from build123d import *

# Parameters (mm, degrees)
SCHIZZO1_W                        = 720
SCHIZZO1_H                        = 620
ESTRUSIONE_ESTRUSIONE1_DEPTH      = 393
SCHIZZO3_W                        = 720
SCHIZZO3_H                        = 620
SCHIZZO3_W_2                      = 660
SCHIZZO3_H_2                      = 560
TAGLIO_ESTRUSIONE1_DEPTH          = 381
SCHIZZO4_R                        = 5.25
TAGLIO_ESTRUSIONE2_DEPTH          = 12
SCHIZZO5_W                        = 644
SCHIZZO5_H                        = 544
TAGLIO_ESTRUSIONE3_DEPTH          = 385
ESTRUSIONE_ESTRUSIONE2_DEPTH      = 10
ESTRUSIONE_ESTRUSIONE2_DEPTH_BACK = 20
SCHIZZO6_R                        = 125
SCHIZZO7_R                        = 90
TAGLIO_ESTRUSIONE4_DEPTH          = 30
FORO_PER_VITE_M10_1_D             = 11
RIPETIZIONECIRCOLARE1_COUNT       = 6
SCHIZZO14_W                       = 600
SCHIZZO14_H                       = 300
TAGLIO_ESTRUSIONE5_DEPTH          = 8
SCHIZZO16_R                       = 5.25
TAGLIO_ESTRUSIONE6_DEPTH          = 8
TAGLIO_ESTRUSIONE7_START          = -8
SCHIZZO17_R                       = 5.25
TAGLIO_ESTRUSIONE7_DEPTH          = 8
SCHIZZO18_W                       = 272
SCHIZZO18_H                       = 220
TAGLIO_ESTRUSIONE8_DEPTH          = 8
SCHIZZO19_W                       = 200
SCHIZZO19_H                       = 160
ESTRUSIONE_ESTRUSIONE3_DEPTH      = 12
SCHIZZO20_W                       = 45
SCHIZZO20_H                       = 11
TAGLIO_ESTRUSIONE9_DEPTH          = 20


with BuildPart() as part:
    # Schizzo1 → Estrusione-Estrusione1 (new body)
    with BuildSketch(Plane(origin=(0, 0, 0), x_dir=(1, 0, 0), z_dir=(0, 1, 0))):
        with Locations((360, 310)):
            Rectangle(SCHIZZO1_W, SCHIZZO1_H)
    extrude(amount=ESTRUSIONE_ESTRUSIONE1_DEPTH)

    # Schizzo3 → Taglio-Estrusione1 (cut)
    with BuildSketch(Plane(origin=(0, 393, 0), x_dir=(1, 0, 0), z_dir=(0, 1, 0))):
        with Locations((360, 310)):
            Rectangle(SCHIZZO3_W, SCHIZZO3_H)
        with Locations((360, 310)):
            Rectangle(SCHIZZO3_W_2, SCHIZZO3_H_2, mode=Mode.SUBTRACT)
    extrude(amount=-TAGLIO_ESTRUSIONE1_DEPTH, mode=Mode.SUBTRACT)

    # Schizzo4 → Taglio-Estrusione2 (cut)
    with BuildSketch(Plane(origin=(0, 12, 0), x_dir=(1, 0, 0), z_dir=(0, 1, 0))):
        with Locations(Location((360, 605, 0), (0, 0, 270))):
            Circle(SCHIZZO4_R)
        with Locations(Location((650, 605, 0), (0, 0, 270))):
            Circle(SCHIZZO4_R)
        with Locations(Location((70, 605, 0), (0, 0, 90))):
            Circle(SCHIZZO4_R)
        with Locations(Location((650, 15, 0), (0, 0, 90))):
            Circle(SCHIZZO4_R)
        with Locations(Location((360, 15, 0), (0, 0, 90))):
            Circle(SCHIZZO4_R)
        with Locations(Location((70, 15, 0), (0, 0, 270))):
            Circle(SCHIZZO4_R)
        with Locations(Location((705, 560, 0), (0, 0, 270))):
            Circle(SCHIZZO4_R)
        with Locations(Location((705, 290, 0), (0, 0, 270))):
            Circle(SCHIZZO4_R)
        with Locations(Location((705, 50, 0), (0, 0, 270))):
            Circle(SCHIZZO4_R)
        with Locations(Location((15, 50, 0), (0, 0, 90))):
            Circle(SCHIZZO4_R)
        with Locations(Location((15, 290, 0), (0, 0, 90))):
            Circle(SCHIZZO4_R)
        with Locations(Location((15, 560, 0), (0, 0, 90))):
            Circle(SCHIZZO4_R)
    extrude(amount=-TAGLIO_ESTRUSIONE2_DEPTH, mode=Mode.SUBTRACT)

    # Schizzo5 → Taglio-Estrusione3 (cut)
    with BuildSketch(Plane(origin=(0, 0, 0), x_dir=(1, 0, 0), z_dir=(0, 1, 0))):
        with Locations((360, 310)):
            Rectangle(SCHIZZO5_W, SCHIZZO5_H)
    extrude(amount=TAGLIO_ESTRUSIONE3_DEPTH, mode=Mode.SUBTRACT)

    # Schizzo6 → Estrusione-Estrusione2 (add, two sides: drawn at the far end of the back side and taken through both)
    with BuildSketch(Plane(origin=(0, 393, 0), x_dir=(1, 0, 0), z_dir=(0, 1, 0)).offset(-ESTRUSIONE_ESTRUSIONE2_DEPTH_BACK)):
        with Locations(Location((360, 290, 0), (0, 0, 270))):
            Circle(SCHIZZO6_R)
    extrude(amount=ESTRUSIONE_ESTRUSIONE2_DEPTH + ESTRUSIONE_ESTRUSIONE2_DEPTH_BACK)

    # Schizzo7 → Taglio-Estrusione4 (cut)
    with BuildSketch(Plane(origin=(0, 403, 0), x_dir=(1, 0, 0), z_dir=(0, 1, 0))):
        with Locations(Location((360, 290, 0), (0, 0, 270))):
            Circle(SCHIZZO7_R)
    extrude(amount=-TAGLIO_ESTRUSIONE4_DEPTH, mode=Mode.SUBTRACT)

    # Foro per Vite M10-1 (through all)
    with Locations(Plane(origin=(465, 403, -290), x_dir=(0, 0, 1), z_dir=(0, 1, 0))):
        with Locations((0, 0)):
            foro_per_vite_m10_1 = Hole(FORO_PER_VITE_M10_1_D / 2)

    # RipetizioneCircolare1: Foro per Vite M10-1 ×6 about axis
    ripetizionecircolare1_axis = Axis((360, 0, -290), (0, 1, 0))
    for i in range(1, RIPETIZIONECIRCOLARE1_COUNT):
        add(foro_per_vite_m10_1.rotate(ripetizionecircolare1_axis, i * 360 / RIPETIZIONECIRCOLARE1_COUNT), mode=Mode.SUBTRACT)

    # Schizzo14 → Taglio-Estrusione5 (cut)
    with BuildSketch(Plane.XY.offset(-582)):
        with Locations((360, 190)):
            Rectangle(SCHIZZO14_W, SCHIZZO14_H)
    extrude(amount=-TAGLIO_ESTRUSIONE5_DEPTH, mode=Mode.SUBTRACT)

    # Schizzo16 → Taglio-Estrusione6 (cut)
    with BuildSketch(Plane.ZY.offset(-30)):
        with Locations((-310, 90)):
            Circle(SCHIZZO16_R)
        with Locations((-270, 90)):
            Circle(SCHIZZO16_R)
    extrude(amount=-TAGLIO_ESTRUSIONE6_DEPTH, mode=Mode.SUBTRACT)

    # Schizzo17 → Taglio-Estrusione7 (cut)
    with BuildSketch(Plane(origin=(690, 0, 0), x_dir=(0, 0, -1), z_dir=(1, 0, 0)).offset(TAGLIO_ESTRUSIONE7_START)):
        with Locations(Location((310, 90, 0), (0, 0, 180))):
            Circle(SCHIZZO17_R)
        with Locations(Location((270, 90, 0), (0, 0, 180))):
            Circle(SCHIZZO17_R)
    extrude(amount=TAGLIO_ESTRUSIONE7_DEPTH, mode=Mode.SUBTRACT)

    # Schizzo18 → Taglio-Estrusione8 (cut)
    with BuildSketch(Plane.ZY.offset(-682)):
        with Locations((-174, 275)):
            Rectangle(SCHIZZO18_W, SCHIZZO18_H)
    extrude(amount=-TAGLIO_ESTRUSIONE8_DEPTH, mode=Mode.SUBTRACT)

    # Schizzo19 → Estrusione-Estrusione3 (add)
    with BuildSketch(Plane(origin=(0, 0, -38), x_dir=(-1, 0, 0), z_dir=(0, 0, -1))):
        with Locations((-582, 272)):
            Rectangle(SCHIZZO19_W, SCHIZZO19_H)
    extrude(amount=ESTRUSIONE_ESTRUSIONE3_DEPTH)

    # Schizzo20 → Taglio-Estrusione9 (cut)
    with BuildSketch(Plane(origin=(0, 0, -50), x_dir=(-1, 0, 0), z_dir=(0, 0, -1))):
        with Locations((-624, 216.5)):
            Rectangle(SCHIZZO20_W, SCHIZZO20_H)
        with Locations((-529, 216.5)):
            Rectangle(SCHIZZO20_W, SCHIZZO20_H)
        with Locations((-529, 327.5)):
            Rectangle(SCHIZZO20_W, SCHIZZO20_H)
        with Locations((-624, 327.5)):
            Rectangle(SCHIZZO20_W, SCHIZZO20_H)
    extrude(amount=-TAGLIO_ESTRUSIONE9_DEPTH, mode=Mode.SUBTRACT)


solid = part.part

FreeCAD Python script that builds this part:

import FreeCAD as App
import Part
import Sketcher
Q = App.Units.Quantity


def add_polygon(sketch, points):
    """Adds a closed chain of lines whose ends are joined by coincident constraints."""
    first, n = sketch.GeometryCount, len(points)
    for a, b in zip(points, points[1:] + points[:1]):
        sketch.addGeometry(Part.LineSegment(App.Vector(*a, 0), App.Vector(*b, 0)), False)
    for i in range(n):
        sketch.addConstraint(Sketcher.Constraint("Coincident", first + i, 2, first + (i + 1) % n, 1))

doc = App.newDocument("Part")
body = doc.addObject("PartDesign::Body", "Body")

sketch1 = body.newObject("Sketcher::SketchObject", "Sketch")
sketch1.AttachmentSupport = (doc.getObject("XZ_Plane"), [""])
sketch1.MapMode = "FlatFace"
add_polygon(sketch1, [(0, -620), (0, 0), (720, 0), (720, -620)])
sketch1.addConstraint(Sketcher.Constraint("Vertical", 0))
sketch1.addConstraint(Sketcher.Constraint("Horizontal", 1))
sketch1.addConstraint(Sketcher.Constraint("Vertical", 2))
sketch1.addConstraint(Sketcher.Constraint("Horizontal", 3))
sketch1.addConstraint(Sketcher.Constraint("Coincident", 0, 2, -1, 1))
sketch1.addConstraint(Sketcher.Constraint("DistanceX", 1, 1, 1, 2, Q("720 mm")))
sketch1.addConstraint(Sketcher.Constraint("DistanceY", 0, 1, 0, 2, Q("620 mm")))
pad1 = body.newObject("PartDesign::Pad", "Pad")
pad1.Profile = sketch1
pad1.Length = 393
pad1.Reversed = True

sketch2 = body.newObject("Sketcher::SketchObject", "Sketch001")
sketch2.AttachmentSupport = (doc.getObject("XZ_Plane"), [""])
sketch2.MapMode = "FlatFace"
sketch2.AttachmentOffset = App.Placement(App.Vector(0, 0, -393), App.Rotation())
add_polygon(sketch2, [(0, -620), (0, 0), (720, 0), (720, -620)])
add_polygon(sketch2, [(690, -30), (30, -30), (30, -590), (690, -590)])
sketch2.addConstraint(Sketcher.Constraint("Vertical", 0))
sketch2.addConstraint(Sketcher.Constraint("Horizontal", 1))
sketch2.addConstraint(Sketcher.Constraint("Vertical", 2))
sketch2.addConstraint(Sketcher.Constraint("Horizontal", 3))
sketch2.addConstraint(Sketcher.Constraint("Horizontal", 4))
sketch2.addConstraint(Sketcher.Constraint("Vertical", 5))
sketch2.addConstraint(Sketcher.Constraint("Horizontal", 6))
sketch2.addConstraint(Sketcher.Constraint("Vertical", 7))
sketch2.addConstraint(Sketcher.Constraint("Coincident", 0, 2, -1, 1))
sketch2.addConstraint(Sketcher.Constraint("DistanceX", 1, 1, 1, 2, Q("720 mm")))
sketch2.addConstraint(Sketcher.Constraint("DistanceX", 4, 2, 4, 1, Q("660 mm")))
sketch2.addConstraint(Sketcher.Constraint("DistanceY", 0, 1, 0, 2, Q("620 mm")))
sketch2.addConstraint(Sketcher.Constraint("DistanceY", 5, 2, 5, 1, Q("560 mm")))
sketch2.addConstraint(Sketcher.Constraint("DistanceX", -1, 1, 4, 2, Q("30 mm")))
sketch2.addConstraint(Sketcher.Constraint("DistanceY", 4, 2, -1, 1, Q("30 mm")))
pocket1 = body.newObject("PartDesign::Pocket", "Pocket")
pocket1.Profile = sketch2
pocket1.Length = 381
pocket1.Reversed = True

sketch3 = body.newObject("Sketcher::SketchObject", "Sketch002")
sketch3.AttachmentSupport = (doc.getObject("XZ_Plane"), [""])
sketch3.MapMode = "FlatFace"
sketch3.AttachmentOffset = App.Placement(App.Vector(0, 0, -12), App.Rotation())
sketch3.addGeometry(Part.Circle(App.Vector(360, -605, 0), App.Vector(0, 0, 1), 5), False)
sketch3.addGeometry(Part.Circle(App.Vector(650, -605, 0), App.Vector(0, 0, 1), 5), False)
sketch3.addGeometry(Part.Circle(App.Vector(70, -605, 0), App.Vector(0, 0, 1), 5), False)
sketch3.addGeometry(Part.Circle(App.Vector(650, -15, 0), App.Vector(0, 0, 1), 5), False)
sketch3.addGeometry(Part.Circle(App.Vector(360, -15, 0), App.Vector(0, 0, 1), 5), False)
sketch3.addGeometry(Part.Circle(App.Vector(70, -15, 0), App.Vector(0, 0, 1), 5), False)
sketch3.addGeometry(Part.Circle(App.Vector(705, -560, 0), App.Vector(0, 0, 1), 5), False)
sketch3.addGeometry(Part.Circle(App.Vector(705, -290, 0), App.Vector(0, 0, 1), 5), False)
sketch3.addGeometry(Part.Circle(App.Vector(705, -50, 0), App.Vector(0, 0, 1), 5), False)
sketch3.addGeometry(Part.Circle(App.Vector(15, -50, 0), App.Vector(0, 0, 1), 5), False)
sketch3.addGeometry(Part.Circle(App.Vector(15, -290, 0), App.Vector(0, 0, 1), 5), False)
sketch3.addGeometry(Part.Circle(App.Vector(15, -560, 0), App.Vector(0, 0, 1), 5), False)
sketch3.addConstraint(Sketcher.Constraint("Equal", 0, 1))
sketch3.addConstraint(Sketcher.Constraint("Equal", 1, 2))
sketch3.addConstraint(Sketcher.Constraint("Equal", 2, 3))
sketch3.addConstraint(Sketcher.Constraint("Equal", 3, 4))
sketch3.addConstraint(Sketcher.Constraint("Equal", 4, 5))
sketch3.addConstraint(Sketcher.Constraint("Equal", 5, 6))
sketch3.addConstraint(Sketcher.Constraint("Equal", 6, 7))
sketch3.addConstraint(Sketcher.Constraint("Equal", 7, 8))
sketch3.addConstraint(Sketcher.Constraint("Equal", 8, 9))
sketch3.addConstraint(Sketcher.Constraint("Equal", 9, 10))
sketch3.addConstraint(Sketcher.Constraint("Equal", 10, 11))
sketch3.addConstraint(Sketcher.Constraint("Horizontal", 0, 3, 1, 3))
sketch3.addConstraint(Sketcher.Constraint("Horizontal", 1, 3, 2, 3))
sketch3.addConstraint(Sketcher.Constraint("Horizontal", 3, 3, 4, 3))
sketch3.addConstraint(Sketcher.Constraint("Horizontal", 4, 3, 5, 3))
sketch3.addConstraint(Sketcher.Constraint("Horizontal", 8, 3, 9, 3))
sketch3.addConstraint(Sketcher.Constraint("Horizontal", 7, 3, 10, 3))
sketch3.addConstraint(Sketcher.Constraint("Horizontal", 6, 3, 11, 3))
sketch3.addConstraint(Sketcher.Constraint("Vertical", 1, 3, 3, 3))
sketch3.addConstraint(Sketcher.Constraint("Vertical", 0, 3, 4, 3))
sketch3.addConstraint(Sketcher.Constraint("Vertical", 2, 3, 5, 3))
sketch3.addConstraint(Sketcher.Constraint("Vertical", 6, 3, 7, 3))
sketch3.addConstraint(Sketcher.Constraint("Vertical", 7, 3, 8, 3))
sketch3.addConstraint(Sketcher.Constraint("Vertical", 9, 3, 10, 3))
sketch3.addConstraint(Sketcher.Constraint("Vertical", 10, 3, 11, 3))
sketch3.addConstraint(Sketcher.Constraint("Diameter", 0, Q("10.5 mm")))
sketch3.addConstraint(Sketcher.Constraint("DistanceX", -1, 1, 0, 3, Q("360 mm")))
sketch3.addConstraint(Sketcher.Constraint("DistanceY", 0, 3, -1, 1, Q("605 mm")))
sketch3.addConstraint(Sketcher.Constraint("DistanceX", -1, 1, 1, 3, Q("650 mm")))
sketch3.addConstraint(Sketcher.Constraint("DistanceX", -1, 1, 2, 3, Q("70 mm")))
sketch3.addConstraint(Sketcher.Constraint("DistanceY", 3, 3, -1, 1, Q("15 mm")))
sketch3.addConstraint(Sketcher.Constraint("DistanceX", -1, 1, 6, 3, Q("705 mm")))
sketch3.addConstraint(Sketcher.Constraint("DistanceY", 6, 3, -1, 1, Q("560 mm")))
sketch3.addConstraint(Sketcher.Constraint("DistanceY", 7, 3, -1, 1, Q("290 mm")))
sketch3.addConstraint(Sketcher.Constraint("DistanceY", 8, 3, -1, 1, Q("50 mm")))
sketch3.addConstraint(Sketcher.Constraint("DistanceX", -1, 1, 9, 3, Q("15 mm")))
pocket2 = body.newObject("PartDesign::Pocket", "Pocket001")
pocket2.Profile = sketch3
pocket2.Length = 12
pocket2.Reversed = True

sketch4 = body.newObject("Sketcher::SketchObject", "Sketch003")
sketch4.AttachmentSupport = (doc.getObject("XZ_Plane"), [""])
sketch4.MapMode = "FlatFace"
add_polygon(sketch4, [(38, -582), (38, -38), (682, -38), (682, -582)])
sketch4.addConstraint(Sketcher.Constraint("Vertical", 0))
sketch4.addConstraint(Sketcher.Constraint("Horizontal", 1))
sketch4.addConstraint(Sketcher.Constraint("Vertical", 2))
sketch4.addConstraint(Sketcher.Constraint("Horizontal", 3))
sketch4.addConstraint(Sketcher.Constraint("DistanceX", 1, 1, 1, 2, Q("644 mm")))
sketch4.addConstraint(Sketcher.Constraint("DistanceY", 0, 1, 0, 2, Q("544 mm")))
sketch4.addConstraint(Sketcher.Constraint("DistanceX", -1, 1, 0, 2, Q("38 mm")))
sketch4.addConstraint(Sketcher.Constraint("DistanceY", 0, 2, -1, 1, Q("38 mm")))
pocket3 = body.newObject("PartDesign::Pocket", "Pocket002")
pocket3.Profile = sketch4
pocket3.Length = 385

sketch5 = body.newObject("Sketcher::SketchObject", "Sketch004")
sketch5.AttachmentSupport = (doc.getObject("XZ_Plane"), [""])
sketch5.MapMode = "FlatFace"
sketch5.AttachmentOffset = App.Placement(App.Vector(0, 0, -393), App.Rotation())
sketch5.addGeometry(Part.Circle(App.Vector(360, -290, 0), App.Vector(0, 0, 1), 125), False)
sketch5.addConstraint(Sketcher.Constraint("Diameter", 0, Q("250 mm")))
sketch5.addConstraint(Sketcher.Constraint("DistanceX", -1, 1, 0, 3, Q("360 mm")))
sketch5.addConstraint(Sketcher.Constraint("DistanceY", 0, 3, -1, 1, Q("290 mm")))
pad2 = body.newObject("PartDesign::Pad", "Pad001")
pad2.Profile = sketch5
pad2.Type = "TwoLengths"
pad2.Length = 10
pad2.Length2 = 20
pad2.Reversed = True

sketch6 = body.newObject("Sketcher::SketchObject", "Sketch005")
sketch6.AttachmentSupport = (doc.getObject("XZ_Plane"), [""])
sketch6.MapMode = "FlatFace"
sketch6.AttachmentOffset = App.Placement(App.Vector(0, 0, -403), App.Rotation())
sketch6.addGeometry(Part.Circle(App.Vector(360, -290, 0), App.Vector(0, 0, 1), 90), False)
sketch6.addConstraint(Sketcher.Constraint("Diameter", 0, Q("180 mm")))
sketch6.addConstraint(Sketcher.Constraint("DistanceX", -1, 1, 0, 3, Q("360 mm")))
sketch6.addConstraint(Sketcher.Constraint("DistanceY", 0, 3, -1, 1, Q("290 mm")))
pocket4 = body.newObject("PartDesign::Pocket", "Pocket003")
pocket4.Profile = sketch6
pocket4.Length = 30
pocket4.Reversed = True

sketch7 = body.newObject("Sketcher::SketchObject", "Sketch006")
sketch7.AttachmentSupport = (doc.getObject("XZ_Plane"), [""])
sketch7.MapMode = "FlatFace"
sketch7.AttachmentOffset = App.Placement(App.Vector(0, 0, -403), App.Rotation())
sketch7.addGeometry(Part.Circle(App.Vector(465, -290, 0), App.Vector(0, 0, 1), 6), False)
sketch7.addConstraint(Sketcher.Constraint("Diameter", 0, Q("11 mm")))
sketch7.addConstraint(Sketcher.Constraint("DistanceX", -1, 1, 0, 3, Q("465 mm")))
sketch7.addConstraint(Sketcher.Constraint("DistanceY", 0, 3, -1, 1, Q("290 mm")))
doc.recompute()
hole = body.newObject("PartDesign::Hole", "Hole")
hole.Profile = sketch7
hole.ThreadType = "None"
hole.Diameter = 11
hole.DepthType = "ThroughAll"
hole.Reversed = True
doc.recompute()

datumline = body.newObject("PartDesign::Line", "DatumLine")
datumline.Placement = App.Placement(App.Vector(360, 0, -290), App.Rotation(App.Vector(0, 0, 1), App.Vector(0, 1, 0)))
polarpattern = body.newObject("PartDesign::PolarPattern", "PolarPattern")
polarpattern.Originals = [hole]
polarpattern.Axis = (datumline, [""])
polarpattern.Angle = 360
polarpattern.Occurrences = 6
body.Tip = polarpattern

sketch8 = body.newObject("Sketcher::SketchObject", "Sketch007")
sketch8.AttachmentSupport = (doc.getObject("XY_Plane"), [""])
sketch8.MapMode = "FlatFace"
sketch8.AttachmentOffset = App.Placement(App.Vector(0, 0, -582), App.Rotation())
add_polygon(sketch8, [(60, 340), (60, 40), (660, 40), (660, 340)])
sketch8.addConstraint(Sketcher.Constraint("Vertical", 0))
sketch8.addConstraint(Sketcher.Constraint("Horizontal", 1))
sketch8.addConstraint(Sketcher.Constraint("Vertical", 2))
sketch8.addConstraint(Sketcher.Constraint("Horizontal", 3))
sketch8.addConstraint(Sketcher.Constraint("DistanceX", 1, 1, 1, 2, Q("600 mm")))
sketch8.addConstraint(Sketcher.Constraint("DistanceY", 0, 2, 0, 1, Q("300 mm")))
sketch8.addConstraint(Sketcher.Constraint("DistanceX", -1, 1, 0, 2, Q("60 mm")))
sketch8.addConstraint(Sketcher.Constraint("DistanceY", -1, 1, 0, 2, Q("40 mm")))
pocket5 = body.newObject("PartDesign::Pocket", "Pocket004")
pocket5.Profile = sketch8
pocket5.Length = 8

sketch9 = body.newObject("Sketcher::SketchObject", "Sketch008")
sketch9.AttachmentSupport = (doc.getObject("YZ_Plane"), [""])
sketch9.MapMode = "FlatFace"
sketch9.AttachmentOffset = App.Placement(App.Vector(0, 0, 30), App.Rotation())
sketch9.addGeometry(Part.Circle(App.Vector(90, -310, 0), App.Vector(0, 0, 1), 5), False)
sketch9.addGeometry(Part.Circle(App.Vector(90, -270, 0), App.Vector(0, 0, 1), 5), False)
sketch9.addConstraint(Sketcher.Constraint("Equal", 0, 1))
sketch9.addConstraint(Sketcher.Constraint("Vertical", 0, 3, 1, 3))
sketch9.addConstraint(Sketcher.Constraint("Diameter", 0, Q("10.5 mm")))
sketch9.addConstraint(Sketcher.Constraint("DistanceX", -1, 1, 0, 3, Q("90 mm")))
sketch9.addConstraint(Sketcher.Constraint("DistanceY", 0, 3, -1, 1, Q("310 mm")))
sketch9.addConstraint(Sketcher.Constraint("DistanceY", 1, 3, -1, 1, Q("270 mm")))
pocket6 = body.newObject("PartDesign::Pocket", "Pocket005")
pocket6.Profile = sketch9
pocket6.Length = 8
pocket6.Reversed = True

sketch10 = body.newObject("Sketcher::SketchObject", "Sketch009")
sketch10.AttachmentSupport = (doc.getObject("YZ_Plane"), [""])
sketch10.MapMode = "FlatFace"
sketch10.AttachmentOffset = App.Placement(App.Vector(0, 0, 682), App.Rotation())
sketch10.addGeometry(Part.Circle(App.Vector(90, -310, 0), App.Vector(0, 0, 1), 5), False)
sketch10.addGeometry(Part.Circle(App.Vector(90, -270, 0), App.Vector(0, 0, 1), 5), False)
sketch10.addConstraint(Sketcher.Constraint("Equal", 0, 1))
sketch10.addConstraint(Sketcher.Constraint("Vertical", 0, 3, 1, 3))
sketch10.addConstraint(Sketcher.Constraint("Diameter", 0, Q("10.5 mm")))
sketch10.addConstraint(Sketcher.Constraint("DistanceX", -1, 1, 0, 3, Q("90 mm")))
sketch10.addConstraint(Sketcher.Constraint("DistanceY", 0, 3, -1, 1, Q("310 mm")))
sketch10.addConstraint(Sketcher.Constraint("DistanceY", 1, 3, -1, 1, Q("270 mm")))
pocket7 = body.newObject("PartDesign::Pocket", "Pocket006")
pocket7.Profile = sketch10
pocket7.Length = 8
pocket7.Reversed = True

sketch11 = body.newObject("Sketcher::SketchObject", "Sketch010")
sketch11.AttachmentSupport = (doc.getObject("YZ_Plane"), [""])
sketch11.MapMode = "FlatFace"
sketch11.AttachmentOffset = App.Placement(App.Vector(0, 0, 682), App.Rotation())
add_polygon(sketch11, [(385, -310), (165, -310), (165, -38), (385, -38)])
sketch11.addConstraint(Sketcher.Constraint("Horizontal", 0))
sketch11.addConstraint(Sketcher.Constraint("Vertical", 1))
sketch11.addConstraint(Sketcher.Constraint("Horizontal", 2))
sketch11.addConstraint(Sketcher.Constraint("Vertical", 3))
sketch11.addConstraint(Sketcher.Constraint("DistanceX", 0, 2, 0, 1, Q("220 mm")))
sketch11.addConstraint(Sketcher.Constraint("DistanceY", 1, 1, 1, 2, Q("272 mm")))
sketch11.addConstraint(Sketcher.Constraint("DistanceX", -1, 1, 0, 2, Q("165 mm")))
sketch11.addConstraint(Sketcher.Constraint("DistanceY", 0, 2, -1, 1, Q("310 mm")))
pocket8 = body.newObject("PartDesign::Pocket", "Pocket007")
pocket8.Profile = sketch11
pocket8.Length = 8
pocket8.Reversed = True

sketch12 = body.newObject("Sketcher::SketchObject", "Sketch011")
sketch12.AttachmentSupport = (doc.getObject("XY_Plane"), [""])
sketch12.MapMode = "FlatFace"
sketch12.AttachmentOffset = App.Placement(App.Vector(0, 0, -38), App.Rotation())
add_polygon(sketch12, [(682, 352), (682, 192), (482, 192), (482, 352)])
sketch12.addConstraint(Sketcher.Constraint("Vertical", 0))
sketch12.addConstraint(Sketcher.Constraint("Horizontal", 1))
sketch12.addConstraint(Sketcher.Constraint("Vertical", 2))
sketch12.addConstraint(Sketcher.Constraint("Horizontal", 3))
sketch12.addConstraint(Sketcher.Constraint("DistanceX", 1, 2, 1, 1, Q("200 mm")))
sketch12.addConstraint(Sketcher.Constraint("DistanceY", 0, 2, 0, 1, Q("160 mm")))
sketch12.addConstraint(Sketcher.Constraint("DistanceX", -1, 1, 0, 2, Q("682 mm")))
sketch12.addConstraint(Sketcher.Constraint("DistanceY", -1, 1, 0, 2, Q("192 mm")))
pad3 = body.newObject("PartDesign::Pad", "Pad002")
pad3.Profile = sketch12
pad3.Length = 12
pad3.Reversed = True

sketch13 = body.newObject("Sketcher::SketchObject", "Sketch012")
sketch13.AttachmentSupport = (doc.getObject("XY_Plane"), [""])
sketch13.MapMode = "FlatFace"
sketch13.AttachmentOffset = App.Placement(App.Vector(0, 0, -50), App.Rotation())
add_polygon(sketch13, [(646, 222), (646, 211), (602, 211), (602, 222)])
add_polygon(sketch13, [(552, 222), (552, 211), (506, 211), (506, 222)])
add_polygon(sketch13, [(552, 333), (552, 322), (506, 322), (506, 333)])
add_polygon(sketch13, [(646, 333), (646, 322), (602, 322), (602, 333)])
sketch13.addConstraint(Sketcher.Constraint("Vertical", 0))
sketch13.addConstraint(Sketcher.Constraint("Horizontal", 1))
sketch13.addConstraint(Sketcher.Constraint("Vertical", 2))
sketch13.addConstraint(Sketcher.Constraint("Horizontal", 3))
sketch13.addConstraint(Sketcher.Constraint("Vertical", 4))
sketch13.addConstraint(Sketcher.Constraint("Horizontal", 5))
sketch13.addConstraint(Sketcher.Constraint("Vertical", 6))
sketch13.addConstraint(Sketcher.Constraint("Horizontal", 7))
sketch13.addConstraint(Sketcher.Constraint("Vertical", 8))
sketch13.addConstraint(Sketcher.Constraint("Horizontal", 9))
sketch13.addConstraint(Sketcher.Constraint("Vertical", 10))
sketch13.addConstraint(Sketcher.Constraint("Horizontal", 11))
sketch13.addConstraint(Sketcher.Constraint("Vertical", 12))
sketch13.addConstraint(Sketcher.Constraint("Horizontal", 13))
sketch13.addConstraint(Sketcher.Constraint("Vertical", 14))
sketch13.addConstraint(Sketcher.Constraint("Horizontal", 15))
sketch13.addConstraint(Sketcher.Constraint("Horizontal", 1, 2, 4, 2))
sketch13.addConstraint(Sketcher.Constraint("Horizontal", 3, 2, 6, 2))
sketch13.addConstraint(Sketcher.Constraint("Horizontal", 9, 2, 12, 2))
sketch13.addConstraint(Sketcher.Constraint("Horizontal", 11, 2, 14, 2))
sketch13.addConstraint(Sketcher.Constraint("Vertical", 7, 2, 8, 2))
sketch13.addConstraint(Sketcher.Constraint("Vertical", 6, 2, 9, 2))
sketch13.addConstraint(Sketcher.Constraint("Vertical", 3, 2, 12, 2))
sketch13.addConstraint(Sketcher.Constraint("Vertical", 2, 2, 13, 2))
sketch13.addConstraint(Sketcher.Constraint("Equal", 3, 5))
sketch13.addConstraint(Sketcher.Constraint("Equal", 6, 8))
sketch13.addConstraint(Sketcher.Constraint("DistanceX", 1, 2, 1, 1, Q("45 mm")))
sketch13.addConstraint(Sketcher.Constraint("DistanceY", 0, 2, 0, 1, Q("11 mm")))
sketch13.addConstraint(Sketcher.Constraint("DistanceY", -1, 1, 0, 2, Q("211 mm")))
sketch13.addConstraint(Sketcher.Constraint("DistanceY", -1, 1, 8, 2, Q("322 mm")))
sketch13.addConstraint(Sketcher.Constraint("DistanceX", 4, 2, 1, 2, Q("50 mm")))
sketch13.addConstraint(Sketcher.Constraint("DistanceX", -1, 1, 0, 2, Q("646.5 mm")))
pocket9 = body.newObject("PartDesign::Pocket", "Pocket008")
pocket9.Profile = sketch13
pocket9.Length = 20
pocket9.Reversed = True

doc.recompute()
